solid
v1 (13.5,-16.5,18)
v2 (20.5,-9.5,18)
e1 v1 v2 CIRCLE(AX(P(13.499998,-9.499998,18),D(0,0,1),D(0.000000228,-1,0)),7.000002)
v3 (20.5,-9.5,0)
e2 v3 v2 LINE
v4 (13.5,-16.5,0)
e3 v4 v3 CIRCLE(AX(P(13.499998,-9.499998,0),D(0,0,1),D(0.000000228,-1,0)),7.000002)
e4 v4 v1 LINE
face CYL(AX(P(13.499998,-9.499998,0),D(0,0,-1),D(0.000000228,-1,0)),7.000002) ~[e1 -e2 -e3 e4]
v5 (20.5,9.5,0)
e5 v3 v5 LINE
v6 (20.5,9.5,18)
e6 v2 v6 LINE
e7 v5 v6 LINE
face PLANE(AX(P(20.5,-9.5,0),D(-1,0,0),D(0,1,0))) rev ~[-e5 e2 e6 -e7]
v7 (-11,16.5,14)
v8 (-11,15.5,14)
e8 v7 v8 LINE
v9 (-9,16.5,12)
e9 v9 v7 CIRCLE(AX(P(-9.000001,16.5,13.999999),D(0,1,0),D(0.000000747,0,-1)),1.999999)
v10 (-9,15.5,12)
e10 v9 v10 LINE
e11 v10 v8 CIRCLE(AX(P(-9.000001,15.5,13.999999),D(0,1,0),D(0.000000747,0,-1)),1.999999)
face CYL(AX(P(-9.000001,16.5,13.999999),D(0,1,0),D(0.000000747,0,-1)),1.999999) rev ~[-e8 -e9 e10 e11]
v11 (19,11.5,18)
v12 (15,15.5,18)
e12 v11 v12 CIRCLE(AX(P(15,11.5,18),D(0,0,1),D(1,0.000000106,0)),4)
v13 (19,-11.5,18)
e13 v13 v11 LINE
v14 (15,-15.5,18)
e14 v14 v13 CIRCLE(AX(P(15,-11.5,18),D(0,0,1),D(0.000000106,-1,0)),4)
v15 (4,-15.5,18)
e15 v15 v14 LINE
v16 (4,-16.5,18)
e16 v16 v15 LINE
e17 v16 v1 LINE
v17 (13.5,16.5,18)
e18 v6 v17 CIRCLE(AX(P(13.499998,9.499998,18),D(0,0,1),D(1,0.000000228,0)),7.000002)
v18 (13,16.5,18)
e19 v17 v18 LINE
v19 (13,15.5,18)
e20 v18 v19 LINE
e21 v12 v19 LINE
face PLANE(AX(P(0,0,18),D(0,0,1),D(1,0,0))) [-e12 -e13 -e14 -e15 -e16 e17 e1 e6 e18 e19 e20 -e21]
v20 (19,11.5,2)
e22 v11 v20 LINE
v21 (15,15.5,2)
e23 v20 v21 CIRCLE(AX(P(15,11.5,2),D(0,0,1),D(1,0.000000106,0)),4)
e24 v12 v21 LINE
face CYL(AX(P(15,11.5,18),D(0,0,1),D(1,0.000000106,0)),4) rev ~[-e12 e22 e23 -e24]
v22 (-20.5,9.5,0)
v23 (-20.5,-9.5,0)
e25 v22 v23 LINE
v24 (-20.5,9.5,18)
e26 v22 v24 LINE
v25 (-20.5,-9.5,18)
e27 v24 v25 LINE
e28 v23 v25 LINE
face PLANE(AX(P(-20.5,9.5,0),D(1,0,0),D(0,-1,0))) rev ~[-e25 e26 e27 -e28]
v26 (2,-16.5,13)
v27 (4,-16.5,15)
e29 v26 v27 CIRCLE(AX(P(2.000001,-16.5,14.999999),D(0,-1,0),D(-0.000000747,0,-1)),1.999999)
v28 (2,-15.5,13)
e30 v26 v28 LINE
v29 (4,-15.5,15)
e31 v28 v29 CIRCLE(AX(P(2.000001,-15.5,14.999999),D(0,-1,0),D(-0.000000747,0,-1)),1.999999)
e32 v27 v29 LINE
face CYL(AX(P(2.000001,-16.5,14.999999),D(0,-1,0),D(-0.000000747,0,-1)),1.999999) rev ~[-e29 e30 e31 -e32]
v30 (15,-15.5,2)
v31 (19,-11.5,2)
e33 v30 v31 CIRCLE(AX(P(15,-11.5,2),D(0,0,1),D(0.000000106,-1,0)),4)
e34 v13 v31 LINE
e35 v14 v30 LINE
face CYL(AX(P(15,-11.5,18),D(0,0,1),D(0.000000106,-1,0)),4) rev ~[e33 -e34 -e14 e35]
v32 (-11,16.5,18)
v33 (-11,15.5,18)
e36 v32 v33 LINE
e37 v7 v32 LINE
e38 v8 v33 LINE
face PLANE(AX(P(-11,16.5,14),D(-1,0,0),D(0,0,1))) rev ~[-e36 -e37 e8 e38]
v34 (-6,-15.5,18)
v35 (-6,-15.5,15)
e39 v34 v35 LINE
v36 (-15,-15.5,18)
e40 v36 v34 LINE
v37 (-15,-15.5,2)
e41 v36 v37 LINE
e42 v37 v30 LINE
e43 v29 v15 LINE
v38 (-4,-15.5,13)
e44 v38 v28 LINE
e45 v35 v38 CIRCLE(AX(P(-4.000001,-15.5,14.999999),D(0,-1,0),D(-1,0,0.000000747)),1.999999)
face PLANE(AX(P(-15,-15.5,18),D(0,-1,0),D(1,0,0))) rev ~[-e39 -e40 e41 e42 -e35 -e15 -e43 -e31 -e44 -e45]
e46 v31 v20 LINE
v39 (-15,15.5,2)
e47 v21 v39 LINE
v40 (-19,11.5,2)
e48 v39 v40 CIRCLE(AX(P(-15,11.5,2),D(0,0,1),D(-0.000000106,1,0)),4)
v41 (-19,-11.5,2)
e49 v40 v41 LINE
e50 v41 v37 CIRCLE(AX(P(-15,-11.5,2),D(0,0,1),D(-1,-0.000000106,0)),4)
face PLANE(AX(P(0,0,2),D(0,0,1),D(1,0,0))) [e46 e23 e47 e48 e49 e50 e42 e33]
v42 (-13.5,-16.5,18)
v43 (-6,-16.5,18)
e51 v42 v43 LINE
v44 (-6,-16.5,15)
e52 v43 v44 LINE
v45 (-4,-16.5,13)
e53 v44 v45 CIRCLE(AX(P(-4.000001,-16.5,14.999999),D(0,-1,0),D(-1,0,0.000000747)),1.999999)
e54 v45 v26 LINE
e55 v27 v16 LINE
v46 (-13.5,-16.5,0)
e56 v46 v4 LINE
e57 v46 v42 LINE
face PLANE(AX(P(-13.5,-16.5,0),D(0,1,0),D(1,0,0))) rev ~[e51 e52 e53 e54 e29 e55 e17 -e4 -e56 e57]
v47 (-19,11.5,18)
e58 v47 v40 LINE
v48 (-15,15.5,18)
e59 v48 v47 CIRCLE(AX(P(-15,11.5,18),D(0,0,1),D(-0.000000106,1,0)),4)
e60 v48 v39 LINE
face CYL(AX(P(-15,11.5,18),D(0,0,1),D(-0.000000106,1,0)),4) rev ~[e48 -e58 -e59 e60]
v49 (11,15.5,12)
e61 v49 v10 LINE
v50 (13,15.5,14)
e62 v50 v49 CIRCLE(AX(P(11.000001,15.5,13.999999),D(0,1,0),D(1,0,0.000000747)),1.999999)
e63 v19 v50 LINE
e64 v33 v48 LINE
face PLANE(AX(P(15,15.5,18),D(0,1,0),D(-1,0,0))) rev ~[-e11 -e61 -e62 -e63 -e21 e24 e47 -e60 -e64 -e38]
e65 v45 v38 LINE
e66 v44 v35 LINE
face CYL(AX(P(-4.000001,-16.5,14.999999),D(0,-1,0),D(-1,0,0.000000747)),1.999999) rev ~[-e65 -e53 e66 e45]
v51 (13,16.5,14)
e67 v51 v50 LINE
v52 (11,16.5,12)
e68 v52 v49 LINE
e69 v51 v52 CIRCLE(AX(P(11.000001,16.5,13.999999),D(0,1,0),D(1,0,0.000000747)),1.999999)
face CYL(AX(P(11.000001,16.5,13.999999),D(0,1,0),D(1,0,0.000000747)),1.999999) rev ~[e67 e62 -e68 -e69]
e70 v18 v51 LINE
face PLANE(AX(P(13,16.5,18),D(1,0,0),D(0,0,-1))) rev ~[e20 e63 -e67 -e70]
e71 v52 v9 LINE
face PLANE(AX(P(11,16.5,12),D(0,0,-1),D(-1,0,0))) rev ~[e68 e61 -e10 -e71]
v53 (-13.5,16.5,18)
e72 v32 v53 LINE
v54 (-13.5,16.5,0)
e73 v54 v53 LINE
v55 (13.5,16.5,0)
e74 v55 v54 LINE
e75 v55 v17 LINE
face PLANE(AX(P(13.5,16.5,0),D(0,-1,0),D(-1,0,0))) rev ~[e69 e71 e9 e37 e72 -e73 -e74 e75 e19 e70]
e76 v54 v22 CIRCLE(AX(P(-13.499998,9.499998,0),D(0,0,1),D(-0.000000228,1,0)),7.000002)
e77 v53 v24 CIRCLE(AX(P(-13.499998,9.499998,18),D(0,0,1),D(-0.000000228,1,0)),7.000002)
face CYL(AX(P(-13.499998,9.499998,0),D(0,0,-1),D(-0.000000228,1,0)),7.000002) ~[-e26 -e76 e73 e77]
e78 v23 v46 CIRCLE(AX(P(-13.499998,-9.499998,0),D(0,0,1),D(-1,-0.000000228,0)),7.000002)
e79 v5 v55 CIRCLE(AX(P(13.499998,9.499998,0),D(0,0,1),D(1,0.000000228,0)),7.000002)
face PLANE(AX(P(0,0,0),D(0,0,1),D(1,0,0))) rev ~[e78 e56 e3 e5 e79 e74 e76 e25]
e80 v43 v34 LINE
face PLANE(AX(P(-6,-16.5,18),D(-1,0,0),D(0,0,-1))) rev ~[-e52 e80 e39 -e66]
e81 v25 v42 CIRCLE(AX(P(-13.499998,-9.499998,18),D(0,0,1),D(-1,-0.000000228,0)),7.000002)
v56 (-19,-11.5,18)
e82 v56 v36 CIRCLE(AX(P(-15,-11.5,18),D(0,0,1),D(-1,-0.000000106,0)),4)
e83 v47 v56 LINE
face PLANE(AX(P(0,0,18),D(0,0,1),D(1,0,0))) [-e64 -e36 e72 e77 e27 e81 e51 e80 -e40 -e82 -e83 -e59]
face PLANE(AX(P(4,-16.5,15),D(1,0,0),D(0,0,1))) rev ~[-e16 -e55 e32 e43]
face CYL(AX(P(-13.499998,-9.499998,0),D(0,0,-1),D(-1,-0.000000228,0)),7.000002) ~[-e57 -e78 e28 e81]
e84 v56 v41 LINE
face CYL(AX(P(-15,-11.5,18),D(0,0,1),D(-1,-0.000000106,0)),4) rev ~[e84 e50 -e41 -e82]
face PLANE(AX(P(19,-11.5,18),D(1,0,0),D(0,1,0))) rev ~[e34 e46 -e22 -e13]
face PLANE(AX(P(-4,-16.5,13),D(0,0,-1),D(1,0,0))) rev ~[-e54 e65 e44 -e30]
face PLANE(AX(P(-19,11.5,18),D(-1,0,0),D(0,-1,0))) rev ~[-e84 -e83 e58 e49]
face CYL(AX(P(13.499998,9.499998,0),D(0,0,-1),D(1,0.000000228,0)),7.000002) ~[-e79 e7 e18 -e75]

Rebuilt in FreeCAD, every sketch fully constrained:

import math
import FreeCAD as App
import Part
import Sketcher

doc = App.newDocument("Part")
body = doc.addObject("PartDesign::Body", "Body")

sketch1 = body.newObject("Sketcher::SketchObject", "Sketch")
sketch1.AttachmentSupport = (doc.getObject("XY_Plane"), [""])
sketch1.MapMode = "FlatFace"
sketch1.addGeometry(Part.LineSegment(App.Vector(-13.5, -16.5, 0), App.Vector(13.5, -16.5, 0)), False)
sketch1.addGeometry(Part.ArcOfCircle(Part.Circle(App.Vector(13.499998, -9.499998, 0), App.Vector(0, 0, 1), 7.000002), math.radians(-89.999987), math.radians(-0.000013)), False)
sketch1.addGeometry(Part.LineSegment(App.Vector(20.5, -9.5, 0), App.Vector(20.5, 9.5, 0)), False)
sketch1.addGeometry(Part.ArcOfCircle(Part.Circle(App.Vector(13.499998, 9.499998, 0), App.Vector(0, 0, 1), 7.000002), math.radians(0.000013), math.radians(89.999987)), False)
sketch1.addGeometry(Part.LineSegment(App.Vector(13.5, 16.5, 0), App.Vector(-13.5, 16.5, 0)), False)
sketch1.addGeometry(Part.ArcOfCircle(Part.Circle(App.Vector(-13.499998, 9.499998, 0), App.Vector(0, 0, 1), 7.000002), math.radians(90.000013), math.radians(179.999987)), False)
sketch1.addGeometry(Part.LineSegment(App.Vector(-20.5, 9.5, 0), App.Vector(-20.5, -9.5, 0)), False)
sketch1.addGeometry(Part.ArcOfCircle(Part.Circle(App.Vector(-13.499998, -9.499998, 0), App.Vector(0, 0, 1), 7.000002), math.radians(-179.999987), math.radians(-90.000013)), False)
sketch1.addConstraint(Sketcher.Constraint("Tangent", 0, 2, 1, 1))
sketch1.addConstraint(Sketcher.Constraint("Tangent", 1, 2, 2, 1))
sketch1.addConstraint(Sketcher.Constraint("Tangent", 2, 2, 3, 1))
sketch1.addConstraint(Sketcher.Constraint("Tangent", 3, 2, 4, 1))
sketch1.addConstraint(Sketcher.Constraint("Tangent", 4, 2, 5, 1))
sketch1.addConstraint(Sketcher.Constraint("Tangent", 5, 2, 6, 1))
sketch1.addConstraint(Sketcher.Constraint("Tangent", 6, 2, 7, 1))
sketch1.addConstraint(Sketcher.Constraint("Tangent", 7, 2, 0, 1))
sketch1.addConstraint(Sketcher.Constraint("Horizontal", 0))
sketch1.addConstraint(Sketcher.Constraint("Vertical", 2))
sketch1.addConstraint(Sketcher.Constraint("Horizontal", 4))
sketch1.addConstraint(Sketcher.Constraint("Vertical", 6))
sketch1.addConstraint(Sketcher.Constraint("Equal", 1, 3))
sketch1.addConstraint(Sketcher.Constraint("Equal", 3, 5))
sketch1.addConstraint(Sketcher.Constraint("Equal", 5, 7))
sketch1.addConstraint(Sketcher.Constraint("Symmetric", 1, 3, 5, 3, -1, 1))
sketch1.addConstraint(Sketcher.Constraint("Radius", 1, 7.000002))
sketch1.addConstraint(Sketcher.Constraint("DistanceX", 0, 1, 0, 2, 27.0))
sketch1.addConstraint(Sketcher.Constraint("DistanceY", 2, 1, 2, 2, 19.0))
pad1 = body.newObject("PartDesign::Pad", "Pad")
pad1.Profile = sketch1
pad1.Length = 18

sketch2 = body.newObject("Sketcher::SketchObject", "Sketch001")
sketch2.AttachmentSupport = (doc.getObject("XY_Plane"), [""])
sketch2.MapMode = "FlatFace"
sketch2.AttachmentOffset = App.Placement(App.Vector(0, 0, 18), App.Rotation())
sketch2.addGeometry(Part.LineSegment(App.Vector(-19, 11.5, 0), App.Vector(-19, -11.5, 0)), False)
sketch2.addGeometry(Part.ArcOfCircle(Part.Circle(App.Vector(-15, -11.5, 0), App.Vector(0, 0, 1), 4), math.radians(-179.999994), math.radians(-90.000006)), False)
sketch2.addGeometry(Part.LineSegment(App.Vector(-15, -15.5, 0), App.Vector(15, -15.5, 0)), False)
sketch2.addGeometry(Part.ArcOfCircle(Part.Circle(App.Vector(15, -11.5, 0), App.Vector(0, 0, 1), 4), math.radians(-89.999994), math.radians(-0.000006)), False)
sketch2.addGeometry(Part.LineSegment(App.Vector(19, -11.5, 0), App.Vector(19, 11.5, 0)), False)
sketch2.addGeometry(Part.ArcOfCircle(Part.Circle(App.Vector(15, 11.5, 0), App.Vector(0, 0, 1), 4), math.radians(0.000006), math.radians(89.999994)), False)
sketch2.addGeometry(Part.LineSegment(App.Vector(15, 15.5, 0), App.Vector(-15, 15.5, 0)), False)
sketch2.addGeometry(Part.ArcOfCircle(Part.Circle(App.Vector(-15, 11.5, 0), App.Vector(0, 0, 1), 4), math.radians(90.000006), math.radians(179.999994)), False)
sketch2.addConstraint(Sketcher.Constraint("Tangent", 0, 2, 1, 1))
sketch2.addConstraint(Sketcher.Constraint("Tangent", 1, 2, 2, 1))
sketch2.addConstraint(Sketcher.Constraint("Tangent", 2, 2, 3, 1))
sketch2.addConstraint(Sketcher.Constraint("Tangent", 3, 2, 4, 1))
sketch2.addConstraint(Sketcher.Constraint("Tangent", 4, 2, 5, 1))
sketch2.addConstraint(Sketcher.Constraint("Tangent", 5, 2, 6, 1))
sketch2.addConstraint(Sketcher.Constraint("Tangent", 6, 2, 7, 1))
sketch2.addConstraint(Sketcher.Constraint("Tangent", 7, 2, 0, 1))
sketch2.addConstraint(Sketcher.Constraint("Vertical", 0))
sketch2.addConstraint(Sketcher.Constraint("Horizontal", 2))
sketch2.addConstraint(Sketcher.Constraint("Vertical", 4))
sketch2.addConstraint(Sketcher.Constraint("Horizontal", 6))
sketch2.addConstraint(Sketcher.Constraint("Equal", 1, 3))
sketch2.addConstraint(Sketcher.Constraint("Equal", 3, 5))
sketch2.addConstraint(Sketcher.Constraint("Equal", 5, 7))
sketch2.addConstraint(Sketcher.Constraint("Symmetric", 1, 3, 5, 3, -1, 1))
sketch2.addConstraint(Sketcher.Constraint("Radius", 1, 4.0))
sketch2.addConstraint(Sketcher.Constraint("DistanceX", 2, 1, 2, 2, 30.0))
sketch2.addConstraint(Sketcher.Constraint("DistanceY", 0, 2, 0, 1, 23.0))
pocket1 = body.newObject("PartDesign::Pocket", "Pocket")
pocket1.Profile = sketch2
pocket1.Length = 16

sketch3 = body.newObject("Sketcher::SketchObject", "Sketch002")
sketch3.AttachmentSupport = (doc.getObject("XZ_Plane"), [""])
sketch3.MapMode = "FlatFace"
sketch3.AttachmentOffset = App.Placement(App.Vector(0, 0, 16.5), App.Rotation())
sketch3.addGeometry(Part.LineSegment(App.Vector(-6, 18, 0), App.Vector(-6, 15, 0)), False)
sketch3.addGeometry(Part.ArcOfCircle(Part.Circle(App.Vector(-4.000001, 14.999999, 0), App.Vector(0, 0, 1), 1.999999), math.radians(179.999957), math.radians(270.000043)), False)
sketch3.addGeometry(Part.LineSegment(App.Vector(-4, 13, 0), App.Vector(2, 13, 0)), False)
sketch3.addGeometry(Part.ArcOfCircle(Part.Circle(App.Vector(2.000001, 14.999999, 0), App.Vector(0, 0, 1), 1.999999), math.radians(-90.000043), math.radians(0.000043)), False)
sketch3.addGeometry(Part.LineSegment(App.Vector(4, 15, 0), App.Vector(4, 18, 0)), False)
sketch3.addGeometry(Part.ArcOfCircle(Part.Circle(App.Vector(2.000001, 18.000001, 0), App.Vector(0, 0, 1), 1.999999), math.radians(-0.000043), math.radians(90.000043)), False)
sketch3.addGeometry(Part.LineSegment(App.Vector(2, 20, 0), App.Vector(-4, 20, 0)), False)
sketch3.addGeometry(Part.ArcOfCircle(Part.Circle(App.Vector(-4.000001, 18.000001, 0), App.Vector(0, 0, 1), 1.999999), math.radians(89.999957), math.radians(180.000043)), False)
sketch3.addConstraint(Sketcher.Constraint("Tangent", 0, 2, 1, 1))
sketch3.addConstraint(Sketcher.Constraint("Tangent", 1, 2, 2, 1))
sketch3.addConstraint(Sketcher.Constraint("Tangent", 2, 2, 3, 1))
sketch3.addConstraint(Sketcher.Constraint("Tangent", 3, 2, 4, 1))
sketch3.addConstraint(Sketcher.Constraint("Tangent", 4, 2, 5, 1))
sketch3.addConstraint(Sketcher.Constraint("Tangent", 5, 2, 6, 1))
sketch3.addConstraint(Sketcher.Constraint("Tangent", 6, 2, 7, 1))
sketch3.addConstraint(Sketcher.Constraint("Tangent", 7, 2, 0, 1))
sketch3.addConstraint(Sketcher.Constraint("Vertical", 0))
sketch3.addConstraint(Sketcher.Constraint("Horizontal", 2))
sketch3.addConstraint(Sketcher.Constraint("Vertical", 4))
sketch3.addConstraint(Sketcher.Constraint("Horizontal", 6))
sketch3.addConstraint(Sketcher.Constraint("Equal", 1, 3))
sketch3.addConstraint(Sketcher.Constraint("Equal", 3, 5))
sketch3.addConstraint(Sketcher.Constraint("Equal", 5, 7))
sketch3.addConstraint(Sketcher.Constraint("Radius", 1, 1.999999))
sketch3.addConstraint(Sketcher.Constraint("DistanceX", 2, 1, 2, 2, 6.0))
sketch3.addConstraint(Sketcher.Constraint("DistanceY", 0, 2, 0, 1, 3.0))
sketch3.addConstraint(Sketcher.Constraint("DistanceX", 1, 3, -1, 1, 4.000001))
sketch3.addConstraint(Sketcher.Constraint("DistanceY", -1, 1, 1, 3, 14.999999))
pocket2 = body.newObject("PartDesign::Pocket", "Pocket001")
pocket2.Profile = sketch3
pocket2.Length = 5

sketch4 = body.newObject("Sketcher::SketchObject", "Sketch003")
sketch4.AttachmentSupport = (doc.getObject("XZ_Plane"), [""])
sketch4.MapMode = "FlatFace"
sketch4.AttachmentOffset = App.Placement(App.Vector(0, 0, -16.5), App.Rotation())
sketch4.addGeometry(Part.LineSegment(App.Vector(13, 18, 0), App.Vector(13, 14, 0)), False)
sketch4.addGeometry(Part.ArcOfCircle(Part.Circle(App.Vector(11.000001, 13.999999, 0), App.Vector(0, 0, 1), 1.999999), math.radians(-90.000043), math.radians(0.000043)), False)
sketch4.addGeometry(Part.LineSegment(App.Vector(11, 12, 0), App.Vector(-9, 12, 0)), False)
sketch4.addGeometry(Part.ArcOfCircle(Part.Circle(App.Vector(-9.000001, 13.999999, 0), App.Vector(0, 0, 1), 1.999999), math.radians(179.999957), math.radians(270.000043)), False)
sketch4.addGeometry(Part.LineSegment(App.Vector(-11, 14, 0), App.Vector(-11, 18, 0)), False)
sketch4.addGeometry(Part.ArcOfCircle(Part.Circle(App.Vector(-9.000001, 18.000001, 0), App.Vector(0, 0, 1), 1.999999), math.radians(89.999957), math.radians(180.000043)), False)
sketch4.addGeometry(Part.LineSegment(App.Vector(-9, 20, 0), App.Vector(11, 20, 0)), False)
sketch4.addGeometry(Part.ArcOfCircle(Part.Circle(App.Vector(11.000001, 18.000001, 0), App.Vector(0, 0, 1), 1.999999), math.radians(-0.000043), math.radians(90.000043)), False)
sketch4.addConstraint(Sketcher.Constraint("Tangent", 0, 2, 1, 2))
sketch4.addConstraint(Sketcher.Constraint("Tangent", 1, 1, 2, 1))
sketch4.addConstraint(Sketcher.Constraint("Tangent", 2, 2, 3, 2))
sketch4.addConstraint(Sketcher.Constraint("Tangent", 3, 1, 4, 1))
sketch4.addConstraint(Sketcher.Constraint("Tangent", 4, 2, 5, 2))
sketch4.addConstraint(Sketcher.Constraint("Tangent", 5, 1, 6, 1))
sketch4.addConstraint(Sketcher.Constraint("Tangent", 6, 2, 7, 2))
sketch4.addConstraint(Sketcher.Constraint("Tangent", 7, 1, 0, 1))
sketch4.addConstraint(Sketcher.Constraint("Vertical", 0))
sketch4.addConstraint(Sketcher.Constraint("Horizontal", 2))
sketch4.addConstraint(Sketcher.Constraint("Vertical", 4))
sketch4.addConstraint(Sketcher.Constraint("Horizontal", 6))
sketch4.addConstraint(Sketcher.Constraint("Equal", 1, 3))
sketch4.addConstraint(Sketcher.Constraint("Equal", 3, 5))
sketch4.addConstraint(Sketcher.Constraint("Equal", 5, 7))
sketch4.addConstraint(Sketcher.Constraint("Radius", 1, 1.999999))
sketch4.addConstraint(Sketcher.Constraint("DistanceX", 2, 2, 2, 1, 20.0))
sketch4.addConstraint(Sketcher.Constraint("DistanceY", 0, 2, 0, 1, 4.0))
sketch4.addConstraint(Sketcher.Constraint("DistanceX", -1, 1, 1, 3, 11.000001))
sketch4.addConstraint(Sketcher.Constraint("DistanceY", -1, 1, 1, 3, 13.999999))
pocket3 = body.newObject("PartDesign::Pocket", "Pocket002")
pocket3.Profile = sketch4
pocket3.Length = 5
pocket3.Reversed = True

doc.recompute()
